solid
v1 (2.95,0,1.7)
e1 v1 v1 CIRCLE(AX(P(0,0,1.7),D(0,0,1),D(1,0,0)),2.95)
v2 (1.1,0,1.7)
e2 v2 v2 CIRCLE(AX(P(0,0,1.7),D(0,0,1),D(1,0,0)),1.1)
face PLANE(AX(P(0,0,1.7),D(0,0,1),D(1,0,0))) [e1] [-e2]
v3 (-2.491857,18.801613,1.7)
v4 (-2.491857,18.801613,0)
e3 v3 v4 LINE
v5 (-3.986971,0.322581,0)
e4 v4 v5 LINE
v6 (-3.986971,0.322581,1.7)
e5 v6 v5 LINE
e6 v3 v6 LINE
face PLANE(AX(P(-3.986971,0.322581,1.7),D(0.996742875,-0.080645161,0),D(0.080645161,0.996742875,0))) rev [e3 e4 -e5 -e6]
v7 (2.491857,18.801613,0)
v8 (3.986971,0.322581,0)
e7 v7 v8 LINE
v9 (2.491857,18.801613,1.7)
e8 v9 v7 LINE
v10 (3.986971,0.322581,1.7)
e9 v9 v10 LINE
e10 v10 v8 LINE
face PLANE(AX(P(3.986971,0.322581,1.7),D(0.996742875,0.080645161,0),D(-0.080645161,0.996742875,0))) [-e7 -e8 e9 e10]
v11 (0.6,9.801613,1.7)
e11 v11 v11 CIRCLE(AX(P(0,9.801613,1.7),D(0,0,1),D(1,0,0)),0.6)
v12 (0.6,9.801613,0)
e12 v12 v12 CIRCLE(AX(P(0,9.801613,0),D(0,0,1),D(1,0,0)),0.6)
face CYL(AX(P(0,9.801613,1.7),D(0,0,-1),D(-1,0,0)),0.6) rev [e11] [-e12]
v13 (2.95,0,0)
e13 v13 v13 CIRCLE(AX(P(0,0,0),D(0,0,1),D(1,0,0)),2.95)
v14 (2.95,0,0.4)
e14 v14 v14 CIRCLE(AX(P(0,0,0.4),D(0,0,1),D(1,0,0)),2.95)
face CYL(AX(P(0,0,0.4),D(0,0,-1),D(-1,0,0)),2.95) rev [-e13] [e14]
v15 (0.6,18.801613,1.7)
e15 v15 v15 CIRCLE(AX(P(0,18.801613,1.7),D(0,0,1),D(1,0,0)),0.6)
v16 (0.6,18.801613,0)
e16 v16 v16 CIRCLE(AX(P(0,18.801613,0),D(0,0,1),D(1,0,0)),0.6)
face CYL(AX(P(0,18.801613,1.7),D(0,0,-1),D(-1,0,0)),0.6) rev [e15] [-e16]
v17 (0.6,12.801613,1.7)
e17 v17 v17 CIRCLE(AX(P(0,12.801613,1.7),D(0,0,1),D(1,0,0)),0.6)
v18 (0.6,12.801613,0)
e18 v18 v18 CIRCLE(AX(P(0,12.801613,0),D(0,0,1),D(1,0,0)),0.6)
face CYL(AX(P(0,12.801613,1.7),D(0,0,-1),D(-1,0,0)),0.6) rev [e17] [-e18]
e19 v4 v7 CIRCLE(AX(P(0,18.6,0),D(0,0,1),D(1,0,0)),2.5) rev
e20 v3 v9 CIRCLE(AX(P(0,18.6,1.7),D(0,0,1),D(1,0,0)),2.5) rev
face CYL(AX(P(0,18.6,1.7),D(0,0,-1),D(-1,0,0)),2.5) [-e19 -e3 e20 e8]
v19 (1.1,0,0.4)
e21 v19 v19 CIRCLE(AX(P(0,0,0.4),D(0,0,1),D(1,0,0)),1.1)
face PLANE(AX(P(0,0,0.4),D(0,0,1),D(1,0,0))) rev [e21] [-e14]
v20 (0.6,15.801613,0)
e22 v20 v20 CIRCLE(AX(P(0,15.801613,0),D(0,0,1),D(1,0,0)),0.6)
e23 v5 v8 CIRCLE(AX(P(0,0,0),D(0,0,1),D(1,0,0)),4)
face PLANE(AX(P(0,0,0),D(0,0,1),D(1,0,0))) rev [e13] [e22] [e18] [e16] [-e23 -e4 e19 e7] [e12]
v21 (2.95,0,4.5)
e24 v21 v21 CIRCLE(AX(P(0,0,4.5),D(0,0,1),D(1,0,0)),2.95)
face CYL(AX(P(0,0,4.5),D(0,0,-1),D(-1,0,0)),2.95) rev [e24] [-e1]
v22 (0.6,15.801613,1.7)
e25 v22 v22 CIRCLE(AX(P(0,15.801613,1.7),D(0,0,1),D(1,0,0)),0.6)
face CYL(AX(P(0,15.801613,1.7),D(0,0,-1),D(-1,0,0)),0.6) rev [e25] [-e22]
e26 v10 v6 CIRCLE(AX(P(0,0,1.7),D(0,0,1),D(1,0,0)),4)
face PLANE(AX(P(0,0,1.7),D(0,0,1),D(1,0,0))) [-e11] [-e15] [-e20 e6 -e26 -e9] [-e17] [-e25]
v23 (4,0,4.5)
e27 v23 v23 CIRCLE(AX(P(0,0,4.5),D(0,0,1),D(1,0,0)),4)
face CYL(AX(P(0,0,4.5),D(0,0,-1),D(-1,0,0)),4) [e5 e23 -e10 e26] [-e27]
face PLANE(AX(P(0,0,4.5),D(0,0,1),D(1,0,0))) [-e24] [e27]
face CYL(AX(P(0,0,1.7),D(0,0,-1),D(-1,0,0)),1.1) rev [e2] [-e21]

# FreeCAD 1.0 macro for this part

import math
import FreeCAD as App
import Part
import Sketcher
from FreeCAD import Vector

doc = App.newDocument("Part")
body = doc.addObject("PartDesign::Body", "Body")

# Sketch on XY plane
sketch1 = body.newObject("Sketcher::SketchObject", "Sketch")
sketch1.AttachmentSupport = (doc.getObject("XY_Plane"), [""])
sketch1.MapMode = "FlatFace"
sketch1.addGeometry([
    Part.Circle(Vector(0, 0, 0), Vector(0, 0, 1), 4),
    Part.Circle(Vector(0, 0, 0), Vector(0, 0, 1), 2.95),
], False)
sketch1.addConstraint([
    Sketcher.Constraint("Coincident", 0, 3, -1, 1),
    Sketcher.Constraint("Coincident", 1, 3, -1, 1),
    Sketcher.Constraint("Diameter", 0, 8.0),
    Sketcher.Constraint("Diameter", 1, 5.9),
])
pad1 = body.newObject("PartDesign::Pad", "Pad")
pad1.Profile = sketch1
pad1.Length = 4.5

# Sketch on XY plane
sketch2 = body.newObject("Sketcher::SketchObject", "Sketch001")
sketch2.AttachmentSupport = (doc.getObject("XY_Plane"), [""])
sketch2.MapMode = "FlatFace"
sketch2.addGeometry([
    Part.Circle(Vector(0, 0, 0), Vector(0, 0, 1), 2.95),
    Part.Circle(Vector(0, 0, 0), Vector(0, 0, 1), 1.1),
], False)
sketch2.addConstraint([
    Sketcher.Constraint("Coincident", 0, 3, -1, 1),
    Sketcher.Constraint("Coincident", 1, 3, -1, 1),
    Sketcher.Constraint("Diameter", 0, 5.9),
    Sketcher.Constraint("Diameter", 1, 2.2),
])
pad2 = body.newObject("PartDesign::Pad", "Pad001")
pad2.Profile = sketch2
pad2.Length = 1.7

# Sketch on XY plane
sketch3 = body.newObject("Sketcher::SketchObject", "Sketch002")
sketch3.AttachmentSupport = (doc.getObject("XY_Plane"), [""])
sketch3.MapMode = "FlatFace"
sketch3.addGeometry([
    Part.Circle(Vector(0, 0, 0), Vector(0, 0, 1), 2.95),
    Part.Circle(Vector(0, 0, 0), Vector(0, 0, 1), 1.1),
], False)
sketch3.addConstraint([
    Sketcher.Constraint("Coincident", 0, 3, -1, 1),
    Sketcher.Constraint("Coincident", 1, 3, -1, 1),
    Sketcher.Constraint("Diameter", 0, 5.9),
    Sketcher.Constraint("Diameter", 1, 2.2),
])
pocket1 = body.newObject("PartDesign::Pocket", "Pocket")
pocket1.Profile = sketch3
pocket1.Length = 0.4
pocket1.Reversed = True

# Sketch on XY plane
sketch4 = body.newObject("Sketcher::SketchObject", "Sketch003")
sketch4.AttachmentSupport = (doc.getObject("XY_Plane"), [""])
sketch4.MapMode = "FlatFace"
sketch4.addGeometry([
    Part.ArcOfCircle(Part.Circle(Vector(0, 18.6, 0), Vector(0, 0, 1), 2.5), math.radians(4.625651), math.radians(175.374349)),  # 0
    Part.LineSegment(Vector(-2.491857, 18.801613, 0), Vector(-3.986971, 0.322581, 0)),  # 1
    Part.ArcOfCircle(Part.Circle(Vector(0, 0, 0), Vector(0, 0, 1), 4), math.radians(4.625651), math.radians(175.374349)),  # 2
    Part.LineSegment(Vector(3.986971, 0.322581, 0), Vector(2.491857, 18.801613, 0)),  # 3
    Part.Circle(Vector(0, 9.801613, 0), Vector(0, 0, 1), 0.6),  # 4
    Part.Circle(Vector(0, 12.801613, 0), Vector(0, 0, 1), 0.6),  # 5
    Part.Circle(Vector(0, 15.801613, 0), Vector(0, 0, 1), 0.6),  # 6
    Part.Circle(Vector(0, 18.801613, 0), Vector(0, 0, 1), 0.6),  # 7
], False)
sketch4.addConstraint([
    Sketcher.Constraint("Tangent", 0, 2, 1, 1),
    Sketcher.Constraint("Tangent", 1, 2, 2, 2),
    Sketcher.Constraint("Tangent", 2, 1, 3, 1),
    Sketcher.Constraint("Tangent", 3, 2, 0, 1),
    Sketcher.Constraint("Coincident", 2, 3, -1, 1),
    Sketcher.Constraint("Equal", 4, 5),
    Sketcher.Constraint("Equal", 5, 6),
    Sketcher.Constraint("Equal", 6, 7),
    Sketcher.Constraint("PointOnObject", 0, 3, -2),
    Sketcher.Constraint("PointOnObject", 4, 3, -2),
    Sketcher.Constraint("PointOnObject", 5, 3, -2),
    Sketcher.Constraint("PointOnObject", 6, 3, -2),
    Sketcher.Constraint("PointOnObject", 7, 3, -2),
    Sketcher.Constraint("Horizontal", 7, 3, 0, 2),
    Sketcher.Constraint("Radius", 2, 4.0),
    Sketcher.Constraint("Diameter", 4, 1.2),
    Sketcher.Constraint("Radius", 0, 2.5),
    Sketcher.Constraint("DistanceY", 4, 3, 5, 3, 3.0),
    Sketcher.Constraint("DistanceY", 5, 3, 6, 3, 3.0),
    Sketcher.Constraint("DistanceY", 6, 3, 7, 3, 3.0),
    Sketcher.Constraint("DistanceY", -1, 1, 0, 3, 18.6),
])
pad3 = body.newObject("PartDesign::Pad", "Pad002")
pad3.Profile = sketch4
pad3.Length = 1.7

doc.recompute()
